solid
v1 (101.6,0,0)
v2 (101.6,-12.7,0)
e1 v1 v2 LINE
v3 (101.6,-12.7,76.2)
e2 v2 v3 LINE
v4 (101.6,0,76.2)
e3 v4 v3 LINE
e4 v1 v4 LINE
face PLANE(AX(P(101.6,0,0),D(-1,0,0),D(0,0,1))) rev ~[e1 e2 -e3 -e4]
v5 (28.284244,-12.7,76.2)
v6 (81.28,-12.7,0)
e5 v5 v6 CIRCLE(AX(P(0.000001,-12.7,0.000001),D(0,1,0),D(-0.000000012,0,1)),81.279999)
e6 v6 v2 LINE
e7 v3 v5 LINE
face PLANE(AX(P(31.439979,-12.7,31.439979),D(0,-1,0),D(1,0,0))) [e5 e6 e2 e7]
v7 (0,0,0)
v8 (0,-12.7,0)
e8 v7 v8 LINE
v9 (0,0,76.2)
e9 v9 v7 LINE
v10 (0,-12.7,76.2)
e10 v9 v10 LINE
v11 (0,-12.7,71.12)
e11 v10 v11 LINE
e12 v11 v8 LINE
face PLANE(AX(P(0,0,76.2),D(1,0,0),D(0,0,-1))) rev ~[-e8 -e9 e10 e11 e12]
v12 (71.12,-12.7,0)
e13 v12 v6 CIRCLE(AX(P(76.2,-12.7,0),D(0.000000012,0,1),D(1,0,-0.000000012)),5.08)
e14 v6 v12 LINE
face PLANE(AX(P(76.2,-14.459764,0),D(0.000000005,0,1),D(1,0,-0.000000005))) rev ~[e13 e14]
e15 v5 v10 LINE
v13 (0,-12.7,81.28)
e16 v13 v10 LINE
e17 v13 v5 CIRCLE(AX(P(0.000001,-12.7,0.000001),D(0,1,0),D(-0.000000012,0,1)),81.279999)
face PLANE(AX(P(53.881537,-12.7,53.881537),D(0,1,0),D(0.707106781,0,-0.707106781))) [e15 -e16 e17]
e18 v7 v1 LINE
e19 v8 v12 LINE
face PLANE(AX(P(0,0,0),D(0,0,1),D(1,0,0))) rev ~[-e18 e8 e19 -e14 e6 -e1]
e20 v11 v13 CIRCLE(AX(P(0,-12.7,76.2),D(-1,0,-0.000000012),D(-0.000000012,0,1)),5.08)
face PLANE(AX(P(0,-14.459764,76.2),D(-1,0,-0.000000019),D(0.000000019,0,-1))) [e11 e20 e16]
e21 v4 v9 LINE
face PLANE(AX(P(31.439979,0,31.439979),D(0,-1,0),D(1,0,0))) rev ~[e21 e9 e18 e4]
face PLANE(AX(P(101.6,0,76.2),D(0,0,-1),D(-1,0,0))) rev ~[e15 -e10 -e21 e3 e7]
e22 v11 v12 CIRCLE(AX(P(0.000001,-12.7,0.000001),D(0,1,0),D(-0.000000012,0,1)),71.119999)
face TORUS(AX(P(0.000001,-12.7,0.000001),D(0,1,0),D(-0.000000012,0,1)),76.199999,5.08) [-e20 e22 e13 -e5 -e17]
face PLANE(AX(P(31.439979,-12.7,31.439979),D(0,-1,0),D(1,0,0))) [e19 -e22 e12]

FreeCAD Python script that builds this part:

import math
import FreeCAD as App
import Part
import Sketcher
Q = App.Units.Quantity

doc = App.newDocument("Part")
params = doc.addObject("Spreadsheet::Sheet", "Params")
for row, (alias, value) in enumerate([
    ("sketch1_width", "4 in"),
    ("sketch1_height", "3 in"),
    ("pad1_length", "0.5 in"),
    ("sketch2_radius", "0.2 in"),
    ("sketch3_radius", "3 in"),
], start=1):
    params.set(f"A{row}", alias)
    params.set(f"B{row}", "=" + value)
    params.setAlias(f"B{row}", alias)

body = doc.addObject("PartDesign::Body", "Body")

sketch1 = body.newObject("Sketcher::SketchObject", "Sketch")
sketch1.AttachmentSupport = (doc.getObject("XZ_Plane"), [""])
sketch1.MapMode = "FlatFace"
sketch1.addGeometry([
    Part.LineSegment(App.Vector(0, 76, 0), App.Vector(0, 0, 0)),
    Part.LineSegment(App.Vector(0, 0, 0), App.Vector(102, 0, 0)),
    Part.LineSegment(App.Vector(102, 0, 0), App.Vector(102, 76, 0)),
    Part.LineSegment(App.Vector(102, 76, 0), App.Vector(0, 76, 0)),
], False)
sketch1.addConstraint([
    Sketcher.Constraint("Coincident", 0, 2, 1, 1),
    Sketcher.Constraint("Coincident", 1, 2, 2, 1),
    Sketcher.Constraint("Coincident", 2, 2, 3, 1),
    Sketcher.Constraint("Coincident", 3, 2, 0, 1),
    Sketcher.Constraint("Vertical", 0),
    Sketcher.Constraint("Horizontal", 1),
    Sketcher.Constraint("Vertical", 2),
    Sketcher.Constraint("Horizontal", 3),
    Sketcher.Constraint("Coincident", 0, 2, -1, 1),
    Sketcher.Constraint("DistanceX", 1, 1, 1, 2, Q("4 in")),
    Sketcher.Constraint("DistanceY", 0, 2, 0, 1, Q("3 in")),
])
sketch1.setExpression("Constraints[9]", "Params.sketch1_width")
sketch1.setExpression("Constraints[10]", "Params.sketch1_height")
pad1 = body.newObject("PartDesign::Pad", "Pad")
pad1.Profile = sketch1
pad1.setExpression("Length", "Params.pad1_length")

sketch2 = body.newObject("Sketcher::SketchObject", "Sketch001")
sketch2.AttachmentSupport = (doc.getObject("XY_Plane"), [""])
sketch2.MapMode = "FlatFace"
sketch2.addGeometry([
    Part.ArcOfCircle(Part.Circle(App.Vector(76, -13, 0), App.Vector(0, 0, 1), 5), math.radians(180), math.radians(360)),
    Part.LineSegment(App.Vector(81, -13, 0), App.Vector(71, -13, 0)),
], False)
sketch2.addConstraint([
    Sketcher.Constraint("Coincident", 0, 1, 1, 2),
    Sketcher.Constraint("Coincident", 1, 1, 0, 2),
    Sketcher.Constraint("Horizontal", 1),
    Sketcher.Constraint("Radius", 0, Q("0.2 in")),
    Sketcher.Constraint("DistanceX", -1, 1, 0, 3, Q("3 in")),
    Sketcher.Constraint("DistanceY", 0, 3, -1, 1, Q("0.5 in")),
    Sketcher.Constraint("DistanceY", 0, 1, -1, 1, Q("0.5 in")),
])
sketch2.setExpression("Constraints[3]", "Params.sketch2_radius")

sketch3 = body.newObject("Sketcher::SketchObject", "Sketch002")
sketch3.AttachmentSupport = (doc.getObject("XZ_Plane"), [""])
sketch3.MapMode = "FlatFace"
sketch3.addGeometry(Part.ArcOfCircle(Part.Circle(App.Vector(0, 0, 0), App.Vector(0, 0, 1), 76), math.radians(0), math.radians(90)), False)
sketch3.addConstraint([
    Sketcher.Constraint("Coincident", 0, 3, -1, 1),
    Sketcher.Constraint("PointOnObject", 0, 1, -1),
    Sketcher.Constraint("PointOnObject", 0, 2, -2),
    Sketcher.Constraint("Radius", 0, Q("3 in")),
])
sketch3.setExpression("Constraints[3]", "Params.sketch3_radius")
doc.recompute()

additivepipe = body.newObject("PartDesign::AdditivePipe", "AdditivePipe")
additivepipe.Profile = sketch2
additivepipe.Spine = (sketch3, ["Edge1"])

doc.recompute()
